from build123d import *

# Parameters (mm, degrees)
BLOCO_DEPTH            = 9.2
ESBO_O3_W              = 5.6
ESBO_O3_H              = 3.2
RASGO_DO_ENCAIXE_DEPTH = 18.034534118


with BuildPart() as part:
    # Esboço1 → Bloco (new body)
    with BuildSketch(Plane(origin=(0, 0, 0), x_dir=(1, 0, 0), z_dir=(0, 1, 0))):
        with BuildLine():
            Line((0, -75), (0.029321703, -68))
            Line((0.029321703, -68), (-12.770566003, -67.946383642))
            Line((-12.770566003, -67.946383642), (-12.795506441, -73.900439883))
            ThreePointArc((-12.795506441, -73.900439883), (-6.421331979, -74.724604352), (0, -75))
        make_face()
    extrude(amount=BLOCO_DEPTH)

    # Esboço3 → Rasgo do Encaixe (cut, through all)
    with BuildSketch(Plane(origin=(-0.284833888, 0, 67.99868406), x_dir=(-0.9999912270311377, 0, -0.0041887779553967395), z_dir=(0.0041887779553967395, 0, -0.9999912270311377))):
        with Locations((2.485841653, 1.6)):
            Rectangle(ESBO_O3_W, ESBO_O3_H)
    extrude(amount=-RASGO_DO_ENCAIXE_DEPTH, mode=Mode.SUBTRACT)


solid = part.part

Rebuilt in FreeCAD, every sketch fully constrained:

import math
import FreeCAD as App
import Part
import Sketcher
Q = App.Units.Quantity


def add_polygon(sketch, points):
    """Adds a closed chain of lines whose ends are joined by coincident constraints."""
    first, n = sketch.GeometryCount, len(points)
    for a, b in zip(points, points[1:] + points[:1]):
        sketch.addGeometry(Part.LineSegment(App.Vector(*a, 0), App.Vector(*b, 0)), False)
    for i in range(n):
        sketch.addConstraint(Sketcher.Constraint("Coincident", first + i, 2, first + (i + 1) % n, 1))

doc = App.newDocument("Part")
body = doc.addObject("PartDesign::Body", "Body")

# Sketch on XZ plane
sketch1 = body.newObject("Sketcher::SketchObject", "Sketch")
sketch1.AttachmentSupport = (doc.getObject("XZ_Plane"), [""])
sketch1.MapMode = "FlatFace"
sketch1.addGeometry(Part.LineSegment(App.Vector(0, 75, 0), App.Vector(0, 68, 0)), False)
sketch1.addGeometry(Part.LineSegment(App.Vector(0, 68, 0), App.Vector(-13, 68, 0)), False)
sketch1.addGeometry(Part.LineSegment(App.Vector(-13, 68, 0), App.Vector(-13, 74, 0)), False)
sketch1.addGeometry(Part.ArcOfCircle(Part.Circle(App.Vector(0, 0, 0), App.Vector(0, 0, 1), 75), math.radians(90), math.radians(99.82)), False)
sketch1.addConstraint(Sketcher.Constraint("Coincident", 0, 2, 1, 1))
sketch1.addConstraint(Sketcher.Constraint("Coincident", 1, 2, 2, 1))
sketch1.addConstraint(Sketcher.Constraint("Coincident", 2, 2, 3, 2))
sketch1.addConstraint(Sketcher.Constraint("Coincident", 3, 1, 0, 1))
sketch1.addConstraint(Sketcher.Constraint("Coincident", 3, 3, -1, 1))
sketch1.addConstraint(Sketcher.Constraint("PointOnObject", 3, 1, -2))
sketch1.addConstraint(Sketcher.Constraint("Perpendicular", 0, 1))
sketch1.addConstraint(Sketcher.Constraint("Perpendicular", 1, 2))
sketch1.addConstraint(Sketcher.Constraint("Radius", 3, Q("75 mm")))
sketch1.addConstraint(Sketcher.Constraint("DistanceY", -1, 1, 0, 2, Q("68 mm")))
sketch1.addConstraint(Sketcher.Constraint("Distance", 1, Q("12.8 mm")))
sketch1.addConstraint(Sketcher.Constraint("Angle", 0, Q("-89.76 deg")))
pad1 = body.newObject("PartDesign::Pad", "Pad")
pad1.Profile = sketch1
pad1.Length = 9.2
pad1.Reversed = True

# Sketch on an angled plane
sketch2 = body.newObject("Sketcher::SketchObject", "Sketch001")
sketch2.Placement = App.Placement(App.Vector(-0.284834, 0, 67.998684), App.Rotation(App.Vector(-0.999991227, 0, -0.004188778), App.Vector(0, 1, 0), App.Vector(0.004188778, 0, -0.999991227), "ZXY"))
add_polygon(sketch2, [(-0.3, 3.2), (-0.3, 0), (5.3, 0), (5.3, 3.2)])  # lines 0-3
sketch2.addConstraint(Sketcher.Constraint("Vertical", 0))
sketch2.addConstraint(Sketcher.Constraint("Horizontal", 1))
sketch2.addConstraint(Sketcher.Constraint("Vertical", 2))
sketch2.addConstraint(Sketcher.Constraint("Horizontal", 3))
sketch2.addConstraint(Sketcher.Constraint("PointOnObject", 0, 2, -1))
sketch2.addConstraint(Sketcher.Constraint("DistanceX", 1, 1, 1, 2, Q("5.6 mm")))
sketch2.addConstraint(Sketcher.Constraint("DistanceY", 0, 2, 0, 1, Q("3.2 mm")))
sketch2.addConstraint(Sketcher.Constraint("DistanceX", 0, 2, -1, 1, Q("0.314158 mm")))
pocket1 = body.newObject("PartDesign::Pocket", "Pocket")
pocket1.Profile = sketch2
pocket1.Type = "ThroughAll"

doc.recompute()
